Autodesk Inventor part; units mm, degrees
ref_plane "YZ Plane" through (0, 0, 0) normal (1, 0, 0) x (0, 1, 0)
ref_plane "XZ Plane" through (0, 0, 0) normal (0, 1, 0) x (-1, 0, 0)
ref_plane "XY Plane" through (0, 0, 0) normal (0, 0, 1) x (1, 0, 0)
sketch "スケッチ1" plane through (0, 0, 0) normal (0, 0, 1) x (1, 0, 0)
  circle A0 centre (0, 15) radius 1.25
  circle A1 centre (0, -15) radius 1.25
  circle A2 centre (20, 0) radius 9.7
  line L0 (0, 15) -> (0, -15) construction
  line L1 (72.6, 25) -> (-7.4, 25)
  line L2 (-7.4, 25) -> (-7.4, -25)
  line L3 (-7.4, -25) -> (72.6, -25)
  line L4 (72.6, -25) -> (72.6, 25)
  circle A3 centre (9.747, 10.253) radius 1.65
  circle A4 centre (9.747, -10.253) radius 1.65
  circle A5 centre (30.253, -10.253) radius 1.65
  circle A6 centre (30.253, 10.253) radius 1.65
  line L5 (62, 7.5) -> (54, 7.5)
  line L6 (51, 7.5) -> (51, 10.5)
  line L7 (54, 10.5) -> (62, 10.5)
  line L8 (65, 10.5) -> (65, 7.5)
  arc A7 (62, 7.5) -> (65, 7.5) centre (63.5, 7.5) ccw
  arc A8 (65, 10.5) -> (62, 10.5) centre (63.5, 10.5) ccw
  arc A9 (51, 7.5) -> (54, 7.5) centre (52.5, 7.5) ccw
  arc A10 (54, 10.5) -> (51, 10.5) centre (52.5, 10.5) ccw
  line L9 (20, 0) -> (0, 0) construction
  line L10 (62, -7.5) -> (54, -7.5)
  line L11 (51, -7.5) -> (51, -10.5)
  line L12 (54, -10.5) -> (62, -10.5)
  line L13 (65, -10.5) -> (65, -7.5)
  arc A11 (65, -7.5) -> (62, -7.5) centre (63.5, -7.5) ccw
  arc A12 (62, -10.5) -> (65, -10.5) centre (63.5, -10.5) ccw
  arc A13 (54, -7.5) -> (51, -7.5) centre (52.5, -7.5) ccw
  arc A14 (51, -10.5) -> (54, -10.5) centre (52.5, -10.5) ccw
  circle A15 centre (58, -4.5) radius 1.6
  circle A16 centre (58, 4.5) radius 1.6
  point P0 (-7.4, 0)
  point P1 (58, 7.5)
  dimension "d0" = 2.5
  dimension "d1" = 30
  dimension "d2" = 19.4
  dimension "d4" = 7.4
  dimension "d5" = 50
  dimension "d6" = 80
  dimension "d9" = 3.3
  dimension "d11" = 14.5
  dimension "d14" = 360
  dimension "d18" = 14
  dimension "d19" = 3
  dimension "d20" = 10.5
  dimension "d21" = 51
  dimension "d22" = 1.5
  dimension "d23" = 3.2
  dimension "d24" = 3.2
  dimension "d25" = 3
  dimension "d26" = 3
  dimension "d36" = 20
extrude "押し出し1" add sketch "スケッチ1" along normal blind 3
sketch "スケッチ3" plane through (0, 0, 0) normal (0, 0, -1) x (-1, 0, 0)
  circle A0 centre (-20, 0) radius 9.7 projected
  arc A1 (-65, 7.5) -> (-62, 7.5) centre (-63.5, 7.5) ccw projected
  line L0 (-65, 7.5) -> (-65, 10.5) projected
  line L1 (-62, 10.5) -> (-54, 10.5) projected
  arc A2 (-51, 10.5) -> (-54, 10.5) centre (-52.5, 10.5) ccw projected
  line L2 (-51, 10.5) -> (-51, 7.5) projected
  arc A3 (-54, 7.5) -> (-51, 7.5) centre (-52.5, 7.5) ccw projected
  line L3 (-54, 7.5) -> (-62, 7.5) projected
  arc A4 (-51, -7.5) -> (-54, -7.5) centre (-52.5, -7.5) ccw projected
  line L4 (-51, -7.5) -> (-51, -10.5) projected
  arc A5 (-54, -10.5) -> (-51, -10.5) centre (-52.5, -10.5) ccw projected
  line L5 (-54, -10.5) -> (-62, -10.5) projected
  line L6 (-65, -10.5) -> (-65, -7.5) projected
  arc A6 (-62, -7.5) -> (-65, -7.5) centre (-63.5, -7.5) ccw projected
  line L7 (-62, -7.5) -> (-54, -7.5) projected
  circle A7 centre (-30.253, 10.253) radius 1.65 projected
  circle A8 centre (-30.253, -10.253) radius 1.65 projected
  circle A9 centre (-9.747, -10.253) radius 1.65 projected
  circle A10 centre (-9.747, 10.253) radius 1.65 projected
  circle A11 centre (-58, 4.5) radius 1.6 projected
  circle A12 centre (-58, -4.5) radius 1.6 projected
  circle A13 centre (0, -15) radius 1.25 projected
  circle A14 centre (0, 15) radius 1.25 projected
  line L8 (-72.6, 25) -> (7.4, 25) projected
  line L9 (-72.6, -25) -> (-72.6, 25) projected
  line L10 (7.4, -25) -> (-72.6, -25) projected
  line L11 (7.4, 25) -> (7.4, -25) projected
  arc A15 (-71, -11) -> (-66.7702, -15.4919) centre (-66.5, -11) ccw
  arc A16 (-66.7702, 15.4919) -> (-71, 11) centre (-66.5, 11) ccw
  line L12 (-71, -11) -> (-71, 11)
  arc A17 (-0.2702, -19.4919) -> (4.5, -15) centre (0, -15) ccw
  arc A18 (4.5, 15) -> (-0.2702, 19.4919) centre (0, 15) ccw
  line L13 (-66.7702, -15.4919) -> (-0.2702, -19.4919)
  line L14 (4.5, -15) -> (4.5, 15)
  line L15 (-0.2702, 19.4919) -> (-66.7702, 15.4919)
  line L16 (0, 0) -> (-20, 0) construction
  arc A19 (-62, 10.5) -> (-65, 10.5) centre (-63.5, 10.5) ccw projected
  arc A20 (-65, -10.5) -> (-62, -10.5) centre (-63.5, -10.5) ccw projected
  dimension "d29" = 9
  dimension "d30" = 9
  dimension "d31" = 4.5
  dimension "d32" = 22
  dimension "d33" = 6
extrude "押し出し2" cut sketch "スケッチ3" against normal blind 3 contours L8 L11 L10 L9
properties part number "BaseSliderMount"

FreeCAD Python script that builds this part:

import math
import FreeCAD as App
import Part
import Sketcher

V = App.Vector

doc = App.newDocument("Part")
params = doc.addObject("Spreadsheet::Sheet", "Params")
for row, (alias, value) in enumerate([
    ("sketch1_diameter", "2.5 mm"),
    ("sketch1_diameter2", "3.3 mm"),
    ("sketch1_diameter3", "3.2 mm"),
    ("sketch1_diameter4", "19.4 mm"),
    ("sketch1_radius", "1.5 mm"),
    ("pad1_length", "3 mm"),
    ("sketch2_radius", "4.5 mm"),
    ("sketch2_height", "22 mm"),
    ("sketch2_width", "80 mm"),
    ("sketch2_height2", "50 mm"),
    ("sketch2_height3", "30 mm"),
    ("pocket1_length", "3 mm"),
], start=1):
    params.set(f"A{row}", alias)
    params.set(f"B{row}", "=" + value)
    params.setAlias(f"B{row}", alias)

body = doc.addObject("PartDesign::Body", "Body")

# Sketch on XY plane
sketch1 = body.newObject("Sketcher::SketchObject", "Sketch")
sketch1.AttachmentSupport = (doc.getObject("XY_Plane"), [""])
sketch1.MapMode = "FlatFace"
sketch1.addGeometry([
    Part.LineSegment(V(72.6, -25, 0), V(72.6, 25, 0)),  # 0
    Part.LineSegment(V(72.6, 25, 0), V(-7.4, 25, 0)),  # 1
    Part.LineSegment(V(-7.4, 25, 0), V(-7.4, -25, 0)),  # 2
    Part.LineSegment(V(-7.4, -25, 0), V(72.6, -25, 0)),  # 3
    Part.Circle(V(0, -15, 0), V(0, 0, 1), 1.2),  # 4
    Part.Circle(V(9.7, -10.3, 0), V(0, 0, 1), 1.6),  # 5
    Part.Circle(V(30.3, -10.3, 0), V(0, 0, 1), 1.6),  # 6
    Part.LineSegment(V(54, -7.5, 0), V(62, -7.5, 0)),  # 7
    Part.ArcOfCircle(Part.Circle(V(63.5, -7.5, 0), V(0, 0, 1), 1.5), math.radians(0), math.radians(180)),  # 8
    Part.LineSegment(V(65, -7.5, 0), V(65, -10.5, 0)),  # 9
    Part.ArcOfCircle(Part.Circle(V(63.5, -10.5, 0), V(0, 0, 1), 1.5), math.radians(180), math.radians(360)),  # 10
    Part.LineSegment(V(62, -10.5, 0), V(54, -10.5, 0)),  # 11
    Part.ArcOfCircle(Part.Circle(V(52.5, -10.5, 0), V(0, 0, 1), 1.5), math.radians(180), math.radians(360)),  # 12
    Part.LineSegment(V(51, -10.5, 0), V(51, -7.5, 0)),  # 13
    Part.ArcOfCircle(Part.Circle(V(52.5, -7.5, 0), V(0, 0, 1), 1.5), math.radians(0), math.radians(180)),  # 14
    Part.Circle(V(58, -4.5, 0), V(0, 0, 1), 1.6),  # 15
    Part.Circle(V(9.7, 10.3, 0), V(0, 0, 1), 1.6),  # 16
    Part.Circle(V(20, 0, 0), V(0, 0, 1), 9.7),  # 17
    Part.Circle(V(30.3, 10.3, 0), V(0, 0, 1), 1.6),  # 18
    Part.Circle(V(0, 15, 0), V(0, 0, 1), 1.2),  # 19
    Part.Circle(V(58, 4.5, 0), V(0, 0, 1), 1.6),  # 20
    Part.ArcOfCircle(Part.Circle(V(63.5, 7.5, 0), V(0, 0, 1), 1.5), math.radians(180), math.radians(360)),  # 21
    Part.LineSegment(V(62, 7.5, 0), V(54, 7.5, 0)),  # 22
    Part.ArcOfCircle(Part.Circle(V(52.5, 7.5, 0), V(0, 0, 1), 1.5), math.radians(180), math.radians(360)),  # 23
    Part.LineSegment(V(51, 7.5, 0), V(51, 10.5, 0)),  # 24
    Part.ArcOfCircle(Part.Circle(V(52.5, 10.5, 0), V(0, 0, 1), 1.5), math.radians(0), math.radians(180)),  # 25
    Part.LineSegment(V(54, 10.5, 0), V(62, 10.5, 0)),  # 26
    Part.ArcOfCircle(Part.Circle(V(63.5, 10.5, 0), V(0, 0, 1), 1.5), math.radians(0), math.radians(180)),  # 27
    Part.LineSegment(V(65, 10.5, 0), V(65, 7.5, 0)),  # 28
], False)
sketch1.addConstraint([
    Sketcher.Constraint("Coincident", 0, 2, 1, 1),
    Sketcher.Constraint("Coincident", 1, 2, 2, 1),
    Sketcher.Constraint("Coincident", 2, 2, 3, 1),
    Sketcher.Constraint("Coincident", 3, 2, 0, 1),
    Sketcher.Constraint("Coincident", 7, 2, 8, 2),
    Sketcher.Constraint("Tangent", 8, 1, 9, 1),
    Sketcher.Constraint("Tangent", 9, 2, 10, 2),
    Sketcher.Constraint("Coincident", 10, 1, 11, 1),
    Sketcher.Constraint("Coincident", 11, 2, 12, 2),
    Sketcher.Constraint("Tangent", 12, 1, 13, 1),
    Sketcher.Constraint("Tangent", 13, 2, 14, 2),
    Sketcher.Constraint("Coincident", 14, 1, 7, 1),
    Sketcher.Constraint("Coincident", 21, 1, 22, 1),
    Sketcher.Constraint("Coincident", 22, 2, 23, 2),
    Sketcher.Constraint("Tangent", 23, 1, 24, 1),
    Sketcher.Constraint("Tangent", 24, 2, 25, 2),
    Sketcher.Constraint("Coincident", 25, 1, 26, 1),
    Sketcher.Constraint("Coincident", 26, 2, 27, 2),
    Sketcher.Constraint("Tangent", 27, 1, 28, 1),
    Sketcher.Constraint("Tangent", 28, 2, 21, 2),
    Sketcher.Constraint("Vertical", 0),
    Sketcher.Constraint("Horizontal", 1),
    Sketcher.Constraint("Vertical", 2),
    Sketcher.Constraint("Horizontal", 3),
    Sketcher.Constraint("Horizontal", 7),
    Sketcher.Constraint("Vertical", 9),
    Sketcher.Constraint("Horizontal", 11),
    Sketcher.Constraint("Vertical", 13),
    Sketcher.Constraint("Horizontal", 22),
    Sketcher.Constraint("Vertical", 24),
    Sketcher.Constraint("Horizontal", 26),
    Sketcher.Constraint("Vertical", 28),
    Sketcher.Constraint("Equal", 5, 6),
    Sketcher.Constraint("Equal", 8, 10),
    Sketcher.Constraint("Equal", 10, 12),
    Sketcher.Constraint("Equal", 12, 14),
    Sketcher.Constraint("Equal", 6, 16),
    Sketcher.Constraint("Equal", 16, 18),
    Sketcher.Constraint("Equal", 4, 19),
    Sketcher.Constraint("Equal", 15, 20),
    Sketcher.Constraint("Equal", 14, 21),
    Sketcher.Constraint("Equal", 21, 23),
    Sketcher.Constraint("Equal", 23, 25),
    Sketcher.Constraint("Equal", 25, 27),
    Sketcher.Constraint("Symmetric", 4, 3, 19, 3, -1, 1),
    Sketcher.Constraint("Symmetric", 5, 3, 16, 3, -1),
    Sketcher.Constraint("Symmetric", 6, 3, 18, 3, -1),
    Sketcher.Constraint("Symmetric", 15, 3, 20, 3, -1),
    Sketcher.Constraint("Symmetric", 8, 3, 21, 3, -1),
    Sketcher.Constraint("Symmetric", 14, 3, 23, 3, -1),
    Sketcher.Constraint("PointOnObject", 4, 3, -2),
    Sketcher.Constraint("PointOnObject", 17, 3, -1),
    Sketcher.Constraint("Horizontal", 5, 3, 6, 3),
    Sketcher.Constraint("Horizontal", 10, 3, 12, 3),
    Sketcher.Constraint("Horizontal", 8, 3, 14, 3),
    Sketcher.Constraint("Horizontal", 25, 3, 27, 3),
    Sketcher.Constraint("Horizontal", 14, 3, 7, 2),
    Sketcher.Constraint("Horizontal", 9, 2, 10, 1),
    Sketcher.Constraint("Horizontal", 23, 3, 21, 1),
    Sketcher.Constraint("Horizontal", 24, 2, 25, 1),
    Sketcher.Constraint("Equal", 13, 24),
    Sketcher.Constraint("Diameter", 4, 2.5),
    Sketcher.Constraint("Diameter", 5, 3.3),
    Sketcher.Constraint("Diameter", 15, 3.2),
    Sketcher.Constraint("Diameter", 17, 19.4),
    Sketcher.Constraint("Radius", 8, 1.5),
    Sketcher.Constraint("DistanceX", 1, 2, 1, 1, 80.0),
    Sketcher.Constraint("DistanceY", 0, 1, 0, 2, 50.0),
    Sketcher.Constraint("DistanceY", 9, 2, 9, 1, 3.0),
    Sketcher.Constraint("DistanceX", -1, 1, 17, 3, 20.0),
    Sketcher.Constraint("DistanceX", -1, 1, 12, 1, 51.0),
    Sketcher.Constraint("DistanceY", 8, 3, 15, 3, 3.0),
    Sketcher.Constraint("DistanceY", 4, 3, 19, 3, 30.0),
    Sketcher.Constraint("DistanceY", 10, 3, -1, 1, 10.5),
    Sketcher.Constraint("DistanceX", 1, 2, -1, 1, 7.4),
    Sketcher.Constraint("DistanceY", 27, 3, 0, 2, 14.5),
    Sketcher.Constraint("DistanceX", 7, 1, 7, 2, 8.0),
    Sketcher.Constraint("DistanceX", -1, 1, 15, 3, 58.0),
    Sketcher.Constraint("DistanceX", -1, 1, 5, 3, 9.747),
    Sketcher.Constraint("DistanceY", 5, 3, -1, 1, 10.253),
    Sketcher.Constraint("DistanceX", -1, 1, 6, 3, 30.253),
])
sketch1.setExpression("Constraints[61]", "Params.sketch1_diameter")
sketch1.setExpression("Constraints[62]", "Params.sketch1_diameter2")
sketch1.setExpression("Constraints[63]", "Params.sketch1_diameter3")
sketch1.setExpression("Constraints[64]", "Params.sketch1_diameter4")
sketch1.setExpression("Constraints[65]", "Params.sketch1_radius")
pad1 = body.newObject("PartDesign::Pad", "Pad")
pad1.Profile = sketch1
pad1.setExpression("Length", "Params.pad1_length")

# Sketch on XY plane
sketch2 = body.newObject("Sketcher::SketchObject", "Sketch001")
sketch2.AttachmentSupport = (doc.getObject("XY_Plane"), [""])
sketch2.MapMode = "FlatFace"
sketch2.addGeometry([
    Part.LineSegment(V(-7.4, 25, 0), V(72.6, 25, 0)),  # 0
    Part.LineSegment(V(72.6, 25, 0), V(72.6, -25, 0)),  # 1
    Part.LineSegment(V(72.6, -25, 0), V(-7.4, -25, 0)),  # 2
    Part.LineSegment(V(-7.4, -25, 0), V(-7.4, 25, 0)),  # 3
    Part.ArcOfCircle(Part.Circle(V(66.5, -11, 0), V(0, 0, 1), 4.5), math.radians(-87), math.radians(0)),  # 4
    Part.LineSegment(V(71, -11, 0), V(71, 11, 0)),  # 5
    Part.ArcOfCircle(Part.Circle(V(66.5, 11, 0), V(0, 0, 1), 4.5), math.radians(0), math.radians(87)),  # 6
    Part.LineSegment(V(66.8, 15.5, 0), V(0.3, 19.5, 0)),  # 7
    Part.ArcOfCircle(Part.Circle(V(0, 15, 0), V(0, 0, 1), 4.5), math.radians(87), math.radians(180)),  # 8
    Part.LineSegment(V(-4.5, 15, 0), V(-4.5, -15, 0)),  # 9
    Part.ArcOfCircle(Part.Circle(V(0, -15, 0), V(0, 0, 1), 4.5), math.radians(180), math.radians(273)),  # 10
    Part.LineSegment(V(0.3, -19.5, 0), V(66.8, -15.5, 0)),  # 11
], False)
sketch2.addConstraint([
    Sketcher.Constraint("Coincident", 0, 2, 1, 1),
    Sketcher.Constraint("Coincident", 1, 2, 2, 1),
    Sketcher.Constraint("Coincident", 2, 2, 3, 1),
    Sketcher.Constraint("Coincident", 3, 2, 0, 1),
    Sketcher.Constraint("Tangent", 4, 2, 5, 1),
    Sketcher.Constraint("Tangent", 5, 2, 6, 1),
    Sketcher.Constraint("Tangent", 6, 2, 7, 1),
    Sketcher.Constraint("Tangent", 7, 2, 8, 1),
    Sketcher.Constraint("Tangent", 8, 2, 9, 1),
    Sketcher.Constraint("Tangent", 9, 2, 10, 1),
    Sketcher.Constraint("Tangent", 10, 2, 11, 1),
    Sketcher.Constraint("Tangent", 11, 2, 4, 1),
    Sketcher.Constraint("Horizontal", 0),
    Sketcher.Constraint("Vertical", 1),
    Sketcher.Constraint("Horizontal", 2),
    Sketcher.Constraint("Vertical", 3),
    Sketcher.Constraint("Vertical", 5),
    Sketcher.Constraint("Vertical", 9),
    Sketcher.Constraint("Equal", 4, 6),
    Sketcher.Constraint("Equal", 6, 8),
    Sketcher.Constraint("Equal", 8, 10),
    Sketcher.Constraint("Symmetric", 8, 3, 10, 3, -1, 1),
    Sketcher.Constraint("Vertical", 7, 2, 10, 2),
    Sketcher.Constraint("Radius", 4, 4.5),
    Sketcher.Constraint("DistanceY", 5, 1, 5, 2, 22.0),
    Sketcher.Constraint("DistanceX", 0, 1, 0, 2, 80.0),
    Sketcher.Constraint("DistanceY", 1, 2, 1, 1, 50.0),
    Sketcher.Constraint("DistanceY", 9, 2, 9, 1, 30.0),
    Sketcher.Constraint("DistanceY", -1, 1, 0, 2, 25.0),
    Sketcher.Constraint("DistanceX", -1, 1, 4, 2, 71.0),
    Sketcher.Constraint("DistanceX", -1, 1, 0, 2, 72.6),
])
sketch2.setExpression("Constraints[23]", "Params.sketch2_radius")
sketch2.setExpression("Constraints[24]", "Params.sketch2_height")
sketch2.setExpression("Constraints[25]", "Params.sketch2_width")
sketch2.setExpression("Constraints[26]", "Params.sketch2_height2")
sketch2.setExpression("Constraints[27]", "Params.sketch2_height3")
pocket1 = body.newObject("PartDesign::Pocket", "Pocket")
pocket1.Profile = sketch2
pocket1.setExpression("Length", "Params.pocket1_length")
pocket1.Reversed = True

doc.recompute()
